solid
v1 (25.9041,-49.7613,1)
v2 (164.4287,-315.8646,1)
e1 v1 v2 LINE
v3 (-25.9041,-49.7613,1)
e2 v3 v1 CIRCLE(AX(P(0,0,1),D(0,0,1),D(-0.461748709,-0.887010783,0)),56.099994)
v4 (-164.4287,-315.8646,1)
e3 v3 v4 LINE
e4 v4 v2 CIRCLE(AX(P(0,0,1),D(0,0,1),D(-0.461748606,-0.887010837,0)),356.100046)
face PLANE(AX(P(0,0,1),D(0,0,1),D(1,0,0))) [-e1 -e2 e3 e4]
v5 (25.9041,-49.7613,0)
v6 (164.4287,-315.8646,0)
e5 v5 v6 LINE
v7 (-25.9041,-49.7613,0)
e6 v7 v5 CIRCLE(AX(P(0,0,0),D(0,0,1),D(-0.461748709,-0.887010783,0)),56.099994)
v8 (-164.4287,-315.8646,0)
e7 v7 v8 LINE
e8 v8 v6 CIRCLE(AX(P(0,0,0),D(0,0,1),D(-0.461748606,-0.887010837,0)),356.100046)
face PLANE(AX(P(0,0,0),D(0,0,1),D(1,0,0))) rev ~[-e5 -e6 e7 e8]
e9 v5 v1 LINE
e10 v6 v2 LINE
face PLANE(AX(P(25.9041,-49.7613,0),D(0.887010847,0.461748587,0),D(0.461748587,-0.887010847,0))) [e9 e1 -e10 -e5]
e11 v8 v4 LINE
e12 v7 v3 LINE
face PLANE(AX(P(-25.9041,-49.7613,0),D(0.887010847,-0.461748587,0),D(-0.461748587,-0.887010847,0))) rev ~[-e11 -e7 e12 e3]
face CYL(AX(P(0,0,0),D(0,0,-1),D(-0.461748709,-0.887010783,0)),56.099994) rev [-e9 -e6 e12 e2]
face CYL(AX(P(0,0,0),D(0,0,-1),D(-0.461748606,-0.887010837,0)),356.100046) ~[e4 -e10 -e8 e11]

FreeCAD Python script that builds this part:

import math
import FreeCAD as App
import Part
import Sketcher
Q = App.Units.Quantity

doc = App.newDocument("Part")
body = doc.addObject("PartDesign::Body", "Body")

sketch1 = body.newObject("Sketcher::SketchObject", "Sketch")
sketch1.AttachmentSupport = (doc.getObject("XY_Plane"), [""])
sketch1.MapMode = "FlatFace"
sketch1.addGeometry(Part.ArcOfCircle(Part.Circle(App.Vector(0, 0, 0), App.Vector(0, 0, 1), 56.099994), math.radians(-117.500006), math.radians(-62.499994)), False)
sketch1.addGeometry(Part.LineSegment(App.Vector(-25.9041, -49.7613, 0), App.Vector(-164.4287, -315.8646, 0)), False)
sketch1.addGeometry(Part.ArcOfCircle(Part.Circle(App.Vector(0, 0, 0), App.Vector(0, 0, 1), 356.100046), math.radians(-117.5), math.radians(-62.5)), False)
sketch1.addGeometry(Part.LineSegment(App.Vector(164.4287, -315.8646, 0), App.Vector(25.9041, -49.7613, 0)), False)
sketch1.addConstraint(Sketcher.Constraint("Coincident", 0, 1, 1, 1))
sketch1.addConstraint(Sketcher.Constraint("Coincident", 1, 2, 2, 1))
sketch1.addConstraint(Sketcher.Constraint("Coincident", 2, 2, 3, 1))
sketch1.addConstraint(Sketcher.Constraint("Coincident", 3, 2, 0, 2))
sketch1.addConstraint(Sketcher.Constraint("Coincident", 0, 3, -1, 1))
sketch1.addConstraint(Sketcher.Constraint("Coincident", 2, 3, -1, 1))
sketch1.addConstraint(Sketcher.Constraint("Horizontal", 1, 2, 2, 2))
sketch1.addConstraint(Sketcher.Constraint("Horizontal", 0, 1, 3, 2))
sketch1.addConstraint(Sketcher.Constraint("Radius", 0, Q("56.1 mm")))
sketch1.addConstraint(Sketcher.Constraint("Radius", 2, Q("356.1 mm")))
sketch1.addConstraint(Sketcher.Constraint("Angle", 1, Q("-117.5 deg")))
sketch1.addConstraint(Sketcher.Constraint("DistanceX", 0, 1, -1, 1, Q("25.904 mm")))
pad1 = body.newObject("PartDesign::Pad", "Pad")
pad1.Profile = sketch1
pad1.Length = 1

doc.recompute()
